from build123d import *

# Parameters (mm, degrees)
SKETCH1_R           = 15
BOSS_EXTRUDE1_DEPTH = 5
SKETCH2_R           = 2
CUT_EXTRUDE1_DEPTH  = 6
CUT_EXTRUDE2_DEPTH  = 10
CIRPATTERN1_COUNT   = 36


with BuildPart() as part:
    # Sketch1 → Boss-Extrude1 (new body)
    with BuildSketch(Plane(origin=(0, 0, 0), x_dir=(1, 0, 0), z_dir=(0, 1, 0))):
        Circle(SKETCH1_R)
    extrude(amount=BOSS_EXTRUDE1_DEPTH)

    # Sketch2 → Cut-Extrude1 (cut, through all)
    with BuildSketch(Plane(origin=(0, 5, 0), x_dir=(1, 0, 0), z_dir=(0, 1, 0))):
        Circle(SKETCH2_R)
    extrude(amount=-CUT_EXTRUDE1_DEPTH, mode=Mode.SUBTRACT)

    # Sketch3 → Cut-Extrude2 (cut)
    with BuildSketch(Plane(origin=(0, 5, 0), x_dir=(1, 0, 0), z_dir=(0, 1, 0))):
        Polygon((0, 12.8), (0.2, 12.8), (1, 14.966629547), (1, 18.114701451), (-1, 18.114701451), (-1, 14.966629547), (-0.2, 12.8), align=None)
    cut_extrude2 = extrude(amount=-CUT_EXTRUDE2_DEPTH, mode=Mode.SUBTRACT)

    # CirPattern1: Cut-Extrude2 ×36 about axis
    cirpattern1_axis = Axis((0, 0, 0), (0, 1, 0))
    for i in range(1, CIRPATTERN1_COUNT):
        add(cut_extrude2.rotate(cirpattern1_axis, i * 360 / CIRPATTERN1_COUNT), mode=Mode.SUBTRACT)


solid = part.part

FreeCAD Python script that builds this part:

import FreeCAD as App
import Part
import Sketcher

V = App.Vector
Q = App.Units.Quantity

doc = App.newDocument("Part")
body = doc.addObject("PartDesign::Body", "Body")

# Sketch on XZ plane
sketch1 = body.newObject("Sketcher::SketchObject", "Sketch")
sketch1.AttachmentSupport = (doc.getObject("XZ_Plane"), [""])
sketch1.MapMode = "FlatFace"
sketch1.addGeometry(Part.Circle(V(0, 0, 0), V(0, 0, 1), 15), False)
sketch1.addConstraint([
    Sketcher.Constraint("Coincident", 0, 3, -1, 1),
    Sketcher.Constraint("Diameter", 0, Q("30 mm")),
])
pad1 = body.newObject("PartDesign::Pad", "Pad")
pad1.Profile = sketch1
pad1.Length = 5
pad1.Reversed = True

# Sketch on XZ plane
sketch2 = body.newObject("Sketcher::SketchObject", "Sketch001")
sketch2.AttachmentSupport = (doc.getObject("XZ_Plane"), [""])
sketch2.MapMode = "FlatFace"
sketch2.AttachmentOffset = App.Placement(V(0, 0, -5), App.Rotation())
sketch2.addGeometry(Part.Circle(V(0, 0, 0), V(0, 0, 1), 2), False)
sketch2.addConstraint([
    Sketcher.Constraint("Coincident", 0, 3, -1, 1),
    Sketcher.Constraint("Diameter", 0, Q("4 mm")),
])
pocket1 = body.newObject("PartDesign::Pocket", "Pocket")
pocket1.Profile = sketch2
pocket1.Type = "ThroughAll"
pocket1.Reversed = True

# Sketch on XZ plane
sketch3 = body.newObject("Sketcher::SketchObject", "Sketch002")
sketch3.AttachmentSupport = (doc.getObject("XZ_Plane"), [""])
sketch3.MapMode = "FlatFace"
sketch3.AttachmentOffset = App.Placement(V(0, 0, -5), App.Rotation())
sketch3.addGeometry([
    Part.LineSegment(V(0.2, -12.8, 0), V(1, -14.97, 0)),  # 0
    Part.LineSegment(V(1, -14.97, 0), V(1, -18.11, 0)),  # 1
    Part.LineSegment(V(1, -18.11, 0), V(-1, -18.11, 0)),  # 2
    Part.LineSegment(V(-1, -18.11, 0), V(-1, -14.97, 0)),  # 3
    Part.LineSegment(V(-1, -14.97, 0), V(-0.2, -12.8, 0)),  # 4
    Part.LineSegment(V(-0.2, -12.8, 0), V(0.2, -12.8, 0)),  # 5
], False)
sketch3.addConstraint([
    Sketcher.Constraint("Coincident", 0, 2, 1, 1),
    Sketcher.Constraint("Coincident", 1, 2, 2, 1),
    Sketcher.Constraint("Coincident", 2, 2, 3, 1),
    Sketcher.Constraint("Coincident", 3, 2, 4, 1),
    Sketcher.Constraint("Coincident", 4, 2, 5, 1),
    Sketcher.Constraint("Coincident", 5, 2, 0, 1),
    Sketcher.Constraint("Vertical", 1),
    Sketcher.Constraint("Horizontal", 2),
    Sketcher.Constraint("Vertical", 3),
    Sketcher.Constraint("Horizontal", 5),
    Sketcher.Constraint("Symmetric", 0, 2, 3, 2, -2),
    Sketcher.Constraint("Equal", 0, 4),
    Sketcher.Constraint("DistanceX", 2, 2, 2, 1, Q("2 mm")),
    Sketcher.Constraint("DistanceX", 5, 1, 5, 2, Q("0.4 mm")),
    Sketcher.Constraint("DistanceY", 4, 2, -1, 1, Q("12.8 mm")),
    Sketcher.Constraint("DistanceY", 1, 2, 1, 1, Q("3.148072 mm")),
    Sketcher.Constraint("DistanceY", 1, 2, -1, 1, Q("18.114701 mm")),
])
pocket2 = body.newObject("PartDesign::Pocket", "Pocket001")
pocket2.Profile = sketch3
pocket2.Length = 10
pocket2.Reversed = True
doc.recompute()

polarpattern = body.newObject("PartDesign::PolarPattern", "PolarPattern")
polarpattern.Originals = [pocket2]
polarpattern.Axis = (doc.getObject("Y_Axis"), [""])
polarpattern.Angle = 360
polarpattern.Occurrences = 36
body.Tip = polarpattern

doc.recompute()
